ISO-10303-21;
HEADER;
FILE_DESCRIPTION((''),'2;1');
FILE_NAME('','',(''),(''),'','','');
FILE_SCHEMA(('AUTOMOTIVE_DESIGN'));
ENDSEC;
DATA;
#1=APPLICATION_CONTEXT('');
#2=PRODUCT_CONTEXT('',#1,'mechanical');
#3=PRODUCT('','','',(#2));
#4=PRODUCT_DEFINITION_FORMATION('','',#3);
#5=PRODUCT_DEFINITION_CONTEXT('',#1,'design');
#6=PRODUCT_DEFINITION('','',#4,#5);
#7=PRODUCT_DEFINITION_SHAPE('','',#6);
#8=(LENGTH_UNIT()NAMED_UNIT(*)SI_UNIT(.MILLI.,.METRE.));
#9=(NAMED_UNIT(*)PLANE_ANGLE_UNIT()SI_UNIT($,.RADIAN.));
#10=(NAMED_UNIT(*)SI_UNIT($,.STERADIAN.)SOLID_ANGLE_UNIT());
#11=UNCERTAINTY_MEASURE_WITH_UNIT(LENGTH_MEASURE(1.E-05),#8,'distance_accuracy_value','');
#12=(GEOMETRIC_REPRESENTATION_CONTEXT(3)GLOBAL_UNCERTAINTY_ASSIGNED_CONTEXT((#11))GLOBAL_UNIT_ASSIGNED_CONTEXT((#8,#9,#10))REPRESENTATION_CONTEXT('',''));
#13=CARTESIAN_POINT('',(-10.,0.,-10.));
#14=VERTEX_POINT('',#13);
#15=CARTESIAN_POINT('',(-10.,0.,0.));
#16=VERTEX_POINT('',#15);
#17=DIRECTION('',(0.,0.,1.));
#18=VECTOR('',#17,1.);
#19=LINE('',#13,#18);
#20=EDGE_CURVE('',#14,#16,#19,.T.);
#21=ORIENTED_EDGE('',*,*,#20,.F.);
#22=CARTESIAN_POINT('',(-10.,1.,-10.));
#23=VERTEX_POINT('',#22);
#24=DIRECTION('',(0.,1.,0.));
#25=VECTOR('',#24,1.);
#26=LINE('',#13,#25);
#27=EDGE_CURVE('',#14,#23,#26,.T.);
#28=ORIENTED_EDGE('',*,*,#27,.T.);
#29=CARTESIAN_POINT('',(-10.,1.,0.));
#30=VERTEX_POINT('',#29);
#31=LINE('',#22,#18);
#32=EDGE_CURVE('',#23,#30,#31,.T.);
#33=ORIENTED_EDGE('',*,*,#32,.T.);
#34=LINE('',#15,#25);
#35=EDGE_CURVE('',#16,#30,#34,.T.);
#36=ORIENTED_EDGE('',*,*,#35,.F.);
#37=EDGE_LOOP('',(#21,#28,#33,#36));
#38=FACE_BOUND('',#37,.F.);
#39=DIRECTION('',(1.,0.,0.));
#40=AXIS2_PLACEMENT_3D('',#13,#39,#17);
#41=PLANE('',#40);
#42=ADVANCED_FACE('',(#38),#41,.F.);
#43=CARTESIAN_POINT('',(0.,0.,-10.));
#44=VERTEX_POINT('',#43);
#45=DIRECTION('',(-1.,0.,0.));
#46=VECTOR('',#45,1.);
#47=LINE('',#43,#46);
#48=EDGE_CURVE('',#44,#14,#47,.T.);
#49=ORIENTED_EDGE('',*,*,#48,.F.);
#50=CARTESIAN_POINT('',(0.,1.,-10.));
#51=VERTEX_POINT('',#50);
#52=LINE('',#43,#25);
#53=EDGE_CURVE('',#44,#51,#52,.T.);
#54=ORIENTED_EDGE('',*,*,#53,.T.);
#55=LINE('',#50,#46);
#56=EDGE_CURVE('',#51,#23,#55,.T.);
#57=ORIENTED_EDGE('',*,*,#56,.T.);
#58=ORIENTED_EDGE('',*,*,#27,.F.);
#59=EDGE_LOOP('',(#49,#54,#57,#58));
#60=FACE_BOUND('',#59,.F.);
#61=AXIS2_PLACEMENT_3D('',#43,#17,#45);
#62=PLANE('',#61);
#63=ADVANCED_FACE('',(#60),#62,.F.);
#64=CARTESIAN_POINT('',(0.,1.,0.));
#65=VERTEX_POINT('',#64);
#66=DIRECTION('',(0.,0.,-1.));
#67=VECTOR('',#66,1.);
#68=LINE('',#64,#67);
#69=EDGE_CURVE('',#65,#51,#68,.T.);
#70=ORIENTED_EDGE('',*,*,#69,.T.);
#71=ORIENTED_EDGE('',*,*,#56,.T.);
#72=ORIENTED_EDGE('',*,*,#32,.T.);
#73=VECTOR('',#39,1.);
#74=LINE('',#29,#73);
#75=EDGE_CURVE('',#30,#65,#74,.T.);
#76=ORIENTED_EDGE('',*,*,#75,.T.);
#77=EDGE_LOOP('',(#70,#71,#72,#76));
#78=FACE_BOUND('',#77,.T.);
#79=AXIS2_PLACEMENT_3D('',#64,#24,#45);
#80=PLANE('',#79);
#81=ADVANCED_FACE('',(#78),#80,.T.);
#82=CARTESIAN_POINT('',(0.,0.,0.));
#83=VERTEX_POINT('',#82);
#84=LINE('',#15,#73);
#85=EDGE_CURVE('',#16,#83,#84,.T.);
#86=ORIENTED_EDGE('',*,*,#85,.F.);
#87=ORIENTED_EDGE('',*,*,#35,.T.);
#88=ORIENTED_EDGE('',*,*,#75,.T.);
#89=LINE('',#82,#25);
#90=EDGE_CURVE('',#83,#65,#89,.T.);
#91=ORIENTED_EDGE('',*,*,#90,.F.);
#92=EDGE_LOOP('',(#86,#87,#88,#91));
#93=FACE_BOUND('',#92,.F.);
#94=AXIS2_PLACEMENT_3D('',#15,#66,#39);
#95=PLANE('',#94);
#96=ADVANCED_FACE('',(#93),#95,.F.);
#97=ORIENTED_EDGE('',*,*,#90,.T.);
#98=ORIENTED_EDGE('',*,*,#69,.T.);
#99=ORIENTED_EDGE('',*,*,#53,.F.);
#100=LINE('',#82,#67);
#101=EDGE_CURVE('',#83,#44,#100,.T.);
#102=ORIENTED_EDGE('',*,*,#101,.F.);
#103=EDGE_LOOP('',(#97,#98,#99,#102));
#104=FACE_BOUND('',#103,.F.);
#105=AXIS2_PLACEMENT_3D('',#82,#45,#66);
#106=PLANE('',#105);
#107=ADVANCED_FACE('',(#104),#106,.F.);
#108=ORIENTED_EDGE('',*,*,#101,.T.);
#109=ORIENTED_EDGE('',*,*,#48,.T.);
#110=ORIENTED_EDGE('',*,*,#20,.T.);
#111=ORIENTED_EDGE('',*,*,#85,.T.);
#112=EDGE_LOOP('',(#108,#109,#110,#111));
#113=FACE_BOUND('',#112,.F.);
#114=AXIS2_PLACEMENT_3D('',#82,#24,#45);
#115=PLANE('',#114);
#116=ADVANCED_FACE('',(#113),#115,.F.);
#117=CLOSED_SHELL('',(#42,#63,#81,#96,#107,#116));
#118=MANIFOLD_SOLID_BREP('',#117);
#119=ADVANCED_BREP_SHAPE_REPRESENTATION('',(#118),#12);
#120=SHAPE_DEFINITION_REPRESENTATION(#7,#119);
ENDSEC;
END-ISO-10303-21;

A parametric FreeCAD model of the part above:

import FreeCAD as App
import Part
import Sketcher

V = App.Vector

doc = App.newDocument("Part")
body = doc.addObject("PartDesign::Body", "Body")

# Sketch on XZ plane
sketch1 = body.newObject("Sketcher::SketchObject", "Sketch")
sketch1.AttachmentSupport = (doc.getObject("XZ_Plane"), [""])
sketch1.MapMode = "FlatFace"
sketch1.addGeometry([
    Part.LineSegment(V(-10, -10, 0), V(-10, 0, 0)),
    Part.LineSegment(V(-10, 0, 0), V(0, 0, 0)),
    Part.LineSegment(V(0, 0, 0), V(0, -10, 0)),
    Part.LineSegment(V(0, -10, 0), V(-10, -10, 0)),
], False)
sketch1.addConstraint([
    Sketcher.Constraint("Coincident", 0, 2, 1, 1),
    Sketcher.Constraint("Coincident", 1, 2, 2, 1),
    Sketcher.Constraint("Coincident", 2, 2, 3, 1),
    Sketcher.Constraint("Coincident", 3, 2, 0, 1),
    Sketcher.Constraint("Vertical", 0),
    Sketcher.Constraint("Horizontal", 1),
    Sketcher.Constraint("Vertical", 2),
    Sketcher.Constraint("Horizontal", 3),
    Sketcher.Constraint("Coincident", 1, 2, -1, 1),
    Sketcher.Constraint("Equal", 3, 0),
    Sketcher.Constraint("DistanceX", 1, 1, 1, 2, 10.0),
])
pad1 = body.newObject("PartDesign::Pad", "Pad")
pad1.Profile = sketch1
pad1.Length = 1
pad1.Reversed = True

doc.recompute()
